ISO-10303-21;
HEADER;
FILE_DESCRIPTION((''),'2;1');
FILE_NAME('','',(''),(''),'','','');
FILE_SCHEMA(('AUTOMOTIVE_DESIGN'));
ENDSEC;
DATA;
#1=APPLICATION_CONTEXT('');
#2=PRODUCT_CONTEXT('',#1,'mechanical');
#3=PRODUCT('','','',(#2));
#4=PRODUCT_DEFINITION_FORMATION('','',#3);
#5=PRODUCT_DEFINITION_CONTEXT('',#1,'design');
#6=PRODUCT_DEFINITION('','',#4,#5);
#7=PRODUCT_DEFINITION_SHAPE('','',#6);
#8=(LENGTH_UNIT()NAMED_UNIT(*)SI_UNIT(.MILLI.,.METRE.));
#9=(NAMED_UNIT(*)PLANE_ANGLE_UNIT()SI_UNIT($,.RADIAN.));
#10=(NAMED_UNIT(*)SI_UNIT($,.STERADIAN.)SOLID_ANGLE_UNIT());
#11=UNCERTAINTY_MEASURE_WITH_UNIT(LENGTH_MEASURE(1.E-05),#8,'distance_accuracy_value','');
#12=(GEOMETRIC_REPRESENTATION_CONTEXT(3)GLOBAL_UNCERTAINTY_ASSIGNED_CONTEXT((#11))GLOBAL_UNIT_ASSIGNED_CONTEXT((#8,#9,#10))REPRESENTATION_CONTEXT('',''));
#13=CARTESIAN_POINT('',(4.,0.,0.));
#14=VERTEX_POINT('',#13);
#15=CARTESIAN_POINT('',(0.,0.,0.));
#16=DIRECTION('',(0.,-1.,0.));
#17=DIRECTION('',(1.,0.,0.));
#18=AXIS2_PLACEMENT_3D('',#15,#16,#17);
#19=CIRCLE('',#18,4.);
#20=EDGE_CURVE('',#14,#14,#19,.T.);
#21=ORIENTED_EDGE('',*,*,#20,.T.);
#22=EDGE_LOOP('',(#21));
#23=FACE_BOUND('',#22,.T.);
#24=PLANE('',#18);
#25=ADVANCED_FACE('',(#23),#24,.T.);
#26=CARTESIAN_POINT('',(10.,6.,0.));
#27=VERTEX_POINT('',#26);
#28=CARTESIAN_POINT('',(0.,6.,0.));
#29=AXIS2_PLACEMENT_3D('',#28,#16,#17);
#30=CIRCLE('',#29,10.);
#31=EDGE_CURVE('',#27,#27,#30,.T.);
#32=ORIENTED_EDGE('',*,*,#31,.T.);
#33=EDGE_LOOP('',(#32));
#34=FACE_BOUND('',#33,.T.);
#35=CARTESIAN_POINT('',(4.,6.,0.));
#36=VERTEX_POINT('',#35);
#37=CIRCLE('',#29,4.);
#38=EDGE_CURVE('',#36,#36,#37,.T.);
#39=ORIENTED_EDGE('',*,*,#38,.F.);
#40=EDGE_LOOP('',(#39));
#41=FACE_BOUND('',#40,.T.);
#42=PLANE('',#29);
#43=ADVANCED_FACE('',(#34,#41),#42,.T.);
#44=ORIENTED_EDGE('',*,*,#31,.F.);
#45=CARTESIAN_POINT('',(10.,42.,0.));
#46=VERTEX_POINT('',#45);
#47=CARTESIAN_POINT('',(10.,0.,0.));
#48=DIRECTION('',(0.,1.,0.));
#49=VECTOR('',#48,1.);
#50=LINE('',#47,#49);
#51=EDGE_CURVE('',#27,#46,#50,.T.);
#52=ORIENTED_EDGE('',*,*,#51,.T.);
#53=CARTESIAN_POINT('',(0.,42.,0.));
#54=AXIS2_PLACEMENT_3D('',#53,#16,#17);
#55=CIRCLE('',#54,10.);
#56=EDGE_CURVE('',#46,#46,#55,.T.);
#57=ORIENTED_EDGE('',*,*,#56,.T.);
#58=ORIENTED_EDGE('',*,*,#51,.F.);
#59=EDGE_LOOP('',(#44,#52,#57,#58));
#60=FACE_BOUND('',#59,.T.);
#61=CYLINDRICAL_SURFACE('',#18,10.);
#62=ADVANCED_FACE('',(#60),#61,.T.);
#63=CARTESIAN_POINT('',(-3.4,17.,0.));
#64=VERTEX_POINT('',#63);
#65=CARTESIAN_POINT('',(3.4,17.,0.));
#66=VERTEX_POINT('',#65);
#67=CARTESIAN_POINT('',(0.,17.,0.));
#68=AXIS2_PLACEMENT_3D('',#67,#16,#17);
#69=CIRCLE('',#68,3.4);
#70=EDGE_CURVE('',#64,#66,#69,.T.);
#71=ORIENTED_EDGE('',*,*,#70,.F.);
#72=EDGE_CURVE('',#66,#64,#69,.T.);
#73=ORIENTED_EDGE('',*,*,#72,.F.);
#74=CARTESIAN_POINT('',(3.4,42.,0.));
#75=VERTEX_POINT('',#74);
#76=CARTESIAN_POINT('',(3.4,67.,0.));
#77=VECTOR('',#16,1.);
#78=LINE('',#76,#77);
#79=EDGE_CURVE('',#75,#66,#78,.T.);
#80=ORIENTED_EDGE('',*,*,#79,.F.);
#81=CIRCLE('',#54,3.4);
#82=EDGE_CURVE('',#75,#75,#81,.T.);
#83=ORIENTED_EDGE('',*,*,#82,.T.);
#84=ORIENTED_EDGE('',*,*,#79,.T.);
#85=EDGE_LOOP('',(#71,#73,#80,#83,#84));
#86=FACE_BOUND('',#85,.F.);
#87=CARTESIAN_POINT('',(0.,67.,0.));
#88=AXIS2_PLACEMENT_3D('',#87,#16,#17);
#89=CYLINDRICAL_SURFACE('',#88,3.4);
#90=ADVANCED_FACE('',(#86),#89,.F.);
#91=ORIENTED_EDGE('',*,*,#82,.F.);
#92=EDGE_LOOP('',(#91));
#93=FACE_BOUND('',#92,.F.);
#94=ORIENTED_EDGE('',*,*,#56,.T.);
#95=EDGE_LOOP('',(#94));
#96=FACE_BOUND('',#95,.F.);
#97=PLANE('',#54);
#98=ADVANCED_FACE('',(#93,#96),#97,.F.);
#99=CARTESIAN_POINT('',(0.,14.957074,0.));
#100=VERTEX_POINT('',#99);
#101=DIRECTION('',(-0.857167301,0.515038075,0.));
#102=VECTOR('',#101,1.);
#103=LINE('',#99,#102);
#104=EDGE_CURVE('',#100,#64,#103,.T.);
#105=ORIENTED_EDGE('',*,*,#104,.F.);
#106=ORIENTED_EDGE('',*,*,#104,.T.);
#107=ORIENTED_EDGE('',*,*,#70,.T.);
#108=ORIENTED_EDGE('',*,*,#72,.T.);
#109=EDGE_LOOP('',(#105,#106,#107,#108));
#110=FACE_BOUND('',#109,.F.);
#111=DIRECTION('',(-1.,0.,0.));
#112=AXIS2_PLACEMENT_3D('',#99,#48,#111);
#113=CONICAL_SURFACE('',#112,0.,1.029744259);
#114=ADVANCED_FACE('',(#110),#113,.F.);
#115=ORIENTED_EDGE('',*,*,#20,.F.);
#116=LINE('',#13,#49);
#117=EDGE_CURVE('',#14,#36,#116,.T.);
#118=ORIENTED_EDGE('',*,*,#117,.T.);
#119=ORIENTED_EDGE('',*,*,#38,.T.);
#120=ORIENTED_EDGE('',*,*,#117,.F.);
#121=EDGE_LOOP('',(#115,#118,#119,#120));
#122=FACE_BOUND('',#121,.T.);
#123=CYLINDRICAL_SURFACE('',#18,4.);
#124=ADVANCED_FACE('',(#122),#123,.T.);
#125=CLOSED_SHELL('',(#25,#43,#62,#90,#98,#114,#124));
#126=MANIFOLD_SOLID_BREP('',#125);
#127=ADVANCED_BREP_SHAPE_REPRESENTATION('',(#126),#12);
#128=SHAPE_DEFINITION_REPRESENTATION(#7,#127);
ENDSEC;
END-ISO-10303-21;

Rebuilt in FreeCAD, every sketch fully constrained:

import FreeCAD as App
import Part
import Sketcher
from FreeCAD import Vector

doc = App.newDocument("Part")
body = doc.addObject("PartDesign::Body", "Body")

# Sketch on XZ plane
sketch1 = body.newObject("Sketcher::SketchObject", "Sketch")
sketch1.AttachmentSupport = (doc.getObject("XZ_Plane"), [""])
sketch1.MapMode = "FlatFace"
sketch1.addGeometry(Part.Circle(Vector(0, 0, 0), Vector(0, 0, 1), 10), False)
sketch1.addConstraint(Sketcher.Constraint("Coincident", 0, 3, -1, 1))
sketch1.addConstraint(Sketcher.Constraint("Diameter", 0, 20.0))
pad1 = body.newObject("PartDesign::Pad", "Pad")
pad1.Profile = sketch1
pad1.Length = 42
pad1.Reversed = True

# Sketch on XZ plane
sketch2 = body.newObject("Sketcher::SketchObject", "Sketch001")
sketch2.AttachmentSupport = (doc.getObject("XZ_Plane"), [""])
sketch2.MapMode = "FlatFace"
sketch2.addGeometry(Part.Circle(Vector(0, 0, 0), Vector(0, 0, 1), 16.5), False)
sketch2.addGeometry(Part.Circle(Vector(0, 0, 0), Vector(0, 0, 1), 4), False)
sketch2.addConstraint(Sketcher.Constraint("Coincident", 0, 3, -1, 1))
sketch2.addConstraint(Sketcher.Constraint("Coincident", 1, 3, -1, 1))
sketch2.addConstraint(Sketcher.Constraint("Diameter", 1, 8.0))
sketch2.addConstraint(Sketcher.Constraint("Diameter", 0, 32.943311))
pocket1 = body.newObject("PartDesign::Pocket", "Pocket")
pocket1.Profile = sketch2
pocket1.Length = 6

# Sketch on XZ plane
sketch3 = body.newObject("Sketcher::SketchObject", "Sketch002")
sketch3.AttachmentSupport = (doc.getObject("XZ_Plane"), [""])
sketch3.MapMode = "FlatFace"
sketch3.AttachmentOffset = App.Placement(Vector(0, 0, -42), App.Rotation())
sketch3.addGeometry(Part.Circle(Vector(0, 0, 0), Vector(0, 0, 1), 3.4), False)
sketch3.addConstraint(Sketcher.Constraint("Coincident", 0, 3, -1, 1))
sketch3.addConstraint(Sketcher.Constraint("Diameter", 0, 6.8))
doc.recompute()
hole = body.newObject("PartDesign::Hole", "Hole")
hole.Profile = sketch3
hole.ThreadType = "None"
hole.Diameter = 6.8
hole.DepthType = "Dimension"
hole.Depth = 25
hole.DrillPoint = "Angled"
hole.DrillPointAngle = 118
hole.Reversed = True

doc.recompute()
